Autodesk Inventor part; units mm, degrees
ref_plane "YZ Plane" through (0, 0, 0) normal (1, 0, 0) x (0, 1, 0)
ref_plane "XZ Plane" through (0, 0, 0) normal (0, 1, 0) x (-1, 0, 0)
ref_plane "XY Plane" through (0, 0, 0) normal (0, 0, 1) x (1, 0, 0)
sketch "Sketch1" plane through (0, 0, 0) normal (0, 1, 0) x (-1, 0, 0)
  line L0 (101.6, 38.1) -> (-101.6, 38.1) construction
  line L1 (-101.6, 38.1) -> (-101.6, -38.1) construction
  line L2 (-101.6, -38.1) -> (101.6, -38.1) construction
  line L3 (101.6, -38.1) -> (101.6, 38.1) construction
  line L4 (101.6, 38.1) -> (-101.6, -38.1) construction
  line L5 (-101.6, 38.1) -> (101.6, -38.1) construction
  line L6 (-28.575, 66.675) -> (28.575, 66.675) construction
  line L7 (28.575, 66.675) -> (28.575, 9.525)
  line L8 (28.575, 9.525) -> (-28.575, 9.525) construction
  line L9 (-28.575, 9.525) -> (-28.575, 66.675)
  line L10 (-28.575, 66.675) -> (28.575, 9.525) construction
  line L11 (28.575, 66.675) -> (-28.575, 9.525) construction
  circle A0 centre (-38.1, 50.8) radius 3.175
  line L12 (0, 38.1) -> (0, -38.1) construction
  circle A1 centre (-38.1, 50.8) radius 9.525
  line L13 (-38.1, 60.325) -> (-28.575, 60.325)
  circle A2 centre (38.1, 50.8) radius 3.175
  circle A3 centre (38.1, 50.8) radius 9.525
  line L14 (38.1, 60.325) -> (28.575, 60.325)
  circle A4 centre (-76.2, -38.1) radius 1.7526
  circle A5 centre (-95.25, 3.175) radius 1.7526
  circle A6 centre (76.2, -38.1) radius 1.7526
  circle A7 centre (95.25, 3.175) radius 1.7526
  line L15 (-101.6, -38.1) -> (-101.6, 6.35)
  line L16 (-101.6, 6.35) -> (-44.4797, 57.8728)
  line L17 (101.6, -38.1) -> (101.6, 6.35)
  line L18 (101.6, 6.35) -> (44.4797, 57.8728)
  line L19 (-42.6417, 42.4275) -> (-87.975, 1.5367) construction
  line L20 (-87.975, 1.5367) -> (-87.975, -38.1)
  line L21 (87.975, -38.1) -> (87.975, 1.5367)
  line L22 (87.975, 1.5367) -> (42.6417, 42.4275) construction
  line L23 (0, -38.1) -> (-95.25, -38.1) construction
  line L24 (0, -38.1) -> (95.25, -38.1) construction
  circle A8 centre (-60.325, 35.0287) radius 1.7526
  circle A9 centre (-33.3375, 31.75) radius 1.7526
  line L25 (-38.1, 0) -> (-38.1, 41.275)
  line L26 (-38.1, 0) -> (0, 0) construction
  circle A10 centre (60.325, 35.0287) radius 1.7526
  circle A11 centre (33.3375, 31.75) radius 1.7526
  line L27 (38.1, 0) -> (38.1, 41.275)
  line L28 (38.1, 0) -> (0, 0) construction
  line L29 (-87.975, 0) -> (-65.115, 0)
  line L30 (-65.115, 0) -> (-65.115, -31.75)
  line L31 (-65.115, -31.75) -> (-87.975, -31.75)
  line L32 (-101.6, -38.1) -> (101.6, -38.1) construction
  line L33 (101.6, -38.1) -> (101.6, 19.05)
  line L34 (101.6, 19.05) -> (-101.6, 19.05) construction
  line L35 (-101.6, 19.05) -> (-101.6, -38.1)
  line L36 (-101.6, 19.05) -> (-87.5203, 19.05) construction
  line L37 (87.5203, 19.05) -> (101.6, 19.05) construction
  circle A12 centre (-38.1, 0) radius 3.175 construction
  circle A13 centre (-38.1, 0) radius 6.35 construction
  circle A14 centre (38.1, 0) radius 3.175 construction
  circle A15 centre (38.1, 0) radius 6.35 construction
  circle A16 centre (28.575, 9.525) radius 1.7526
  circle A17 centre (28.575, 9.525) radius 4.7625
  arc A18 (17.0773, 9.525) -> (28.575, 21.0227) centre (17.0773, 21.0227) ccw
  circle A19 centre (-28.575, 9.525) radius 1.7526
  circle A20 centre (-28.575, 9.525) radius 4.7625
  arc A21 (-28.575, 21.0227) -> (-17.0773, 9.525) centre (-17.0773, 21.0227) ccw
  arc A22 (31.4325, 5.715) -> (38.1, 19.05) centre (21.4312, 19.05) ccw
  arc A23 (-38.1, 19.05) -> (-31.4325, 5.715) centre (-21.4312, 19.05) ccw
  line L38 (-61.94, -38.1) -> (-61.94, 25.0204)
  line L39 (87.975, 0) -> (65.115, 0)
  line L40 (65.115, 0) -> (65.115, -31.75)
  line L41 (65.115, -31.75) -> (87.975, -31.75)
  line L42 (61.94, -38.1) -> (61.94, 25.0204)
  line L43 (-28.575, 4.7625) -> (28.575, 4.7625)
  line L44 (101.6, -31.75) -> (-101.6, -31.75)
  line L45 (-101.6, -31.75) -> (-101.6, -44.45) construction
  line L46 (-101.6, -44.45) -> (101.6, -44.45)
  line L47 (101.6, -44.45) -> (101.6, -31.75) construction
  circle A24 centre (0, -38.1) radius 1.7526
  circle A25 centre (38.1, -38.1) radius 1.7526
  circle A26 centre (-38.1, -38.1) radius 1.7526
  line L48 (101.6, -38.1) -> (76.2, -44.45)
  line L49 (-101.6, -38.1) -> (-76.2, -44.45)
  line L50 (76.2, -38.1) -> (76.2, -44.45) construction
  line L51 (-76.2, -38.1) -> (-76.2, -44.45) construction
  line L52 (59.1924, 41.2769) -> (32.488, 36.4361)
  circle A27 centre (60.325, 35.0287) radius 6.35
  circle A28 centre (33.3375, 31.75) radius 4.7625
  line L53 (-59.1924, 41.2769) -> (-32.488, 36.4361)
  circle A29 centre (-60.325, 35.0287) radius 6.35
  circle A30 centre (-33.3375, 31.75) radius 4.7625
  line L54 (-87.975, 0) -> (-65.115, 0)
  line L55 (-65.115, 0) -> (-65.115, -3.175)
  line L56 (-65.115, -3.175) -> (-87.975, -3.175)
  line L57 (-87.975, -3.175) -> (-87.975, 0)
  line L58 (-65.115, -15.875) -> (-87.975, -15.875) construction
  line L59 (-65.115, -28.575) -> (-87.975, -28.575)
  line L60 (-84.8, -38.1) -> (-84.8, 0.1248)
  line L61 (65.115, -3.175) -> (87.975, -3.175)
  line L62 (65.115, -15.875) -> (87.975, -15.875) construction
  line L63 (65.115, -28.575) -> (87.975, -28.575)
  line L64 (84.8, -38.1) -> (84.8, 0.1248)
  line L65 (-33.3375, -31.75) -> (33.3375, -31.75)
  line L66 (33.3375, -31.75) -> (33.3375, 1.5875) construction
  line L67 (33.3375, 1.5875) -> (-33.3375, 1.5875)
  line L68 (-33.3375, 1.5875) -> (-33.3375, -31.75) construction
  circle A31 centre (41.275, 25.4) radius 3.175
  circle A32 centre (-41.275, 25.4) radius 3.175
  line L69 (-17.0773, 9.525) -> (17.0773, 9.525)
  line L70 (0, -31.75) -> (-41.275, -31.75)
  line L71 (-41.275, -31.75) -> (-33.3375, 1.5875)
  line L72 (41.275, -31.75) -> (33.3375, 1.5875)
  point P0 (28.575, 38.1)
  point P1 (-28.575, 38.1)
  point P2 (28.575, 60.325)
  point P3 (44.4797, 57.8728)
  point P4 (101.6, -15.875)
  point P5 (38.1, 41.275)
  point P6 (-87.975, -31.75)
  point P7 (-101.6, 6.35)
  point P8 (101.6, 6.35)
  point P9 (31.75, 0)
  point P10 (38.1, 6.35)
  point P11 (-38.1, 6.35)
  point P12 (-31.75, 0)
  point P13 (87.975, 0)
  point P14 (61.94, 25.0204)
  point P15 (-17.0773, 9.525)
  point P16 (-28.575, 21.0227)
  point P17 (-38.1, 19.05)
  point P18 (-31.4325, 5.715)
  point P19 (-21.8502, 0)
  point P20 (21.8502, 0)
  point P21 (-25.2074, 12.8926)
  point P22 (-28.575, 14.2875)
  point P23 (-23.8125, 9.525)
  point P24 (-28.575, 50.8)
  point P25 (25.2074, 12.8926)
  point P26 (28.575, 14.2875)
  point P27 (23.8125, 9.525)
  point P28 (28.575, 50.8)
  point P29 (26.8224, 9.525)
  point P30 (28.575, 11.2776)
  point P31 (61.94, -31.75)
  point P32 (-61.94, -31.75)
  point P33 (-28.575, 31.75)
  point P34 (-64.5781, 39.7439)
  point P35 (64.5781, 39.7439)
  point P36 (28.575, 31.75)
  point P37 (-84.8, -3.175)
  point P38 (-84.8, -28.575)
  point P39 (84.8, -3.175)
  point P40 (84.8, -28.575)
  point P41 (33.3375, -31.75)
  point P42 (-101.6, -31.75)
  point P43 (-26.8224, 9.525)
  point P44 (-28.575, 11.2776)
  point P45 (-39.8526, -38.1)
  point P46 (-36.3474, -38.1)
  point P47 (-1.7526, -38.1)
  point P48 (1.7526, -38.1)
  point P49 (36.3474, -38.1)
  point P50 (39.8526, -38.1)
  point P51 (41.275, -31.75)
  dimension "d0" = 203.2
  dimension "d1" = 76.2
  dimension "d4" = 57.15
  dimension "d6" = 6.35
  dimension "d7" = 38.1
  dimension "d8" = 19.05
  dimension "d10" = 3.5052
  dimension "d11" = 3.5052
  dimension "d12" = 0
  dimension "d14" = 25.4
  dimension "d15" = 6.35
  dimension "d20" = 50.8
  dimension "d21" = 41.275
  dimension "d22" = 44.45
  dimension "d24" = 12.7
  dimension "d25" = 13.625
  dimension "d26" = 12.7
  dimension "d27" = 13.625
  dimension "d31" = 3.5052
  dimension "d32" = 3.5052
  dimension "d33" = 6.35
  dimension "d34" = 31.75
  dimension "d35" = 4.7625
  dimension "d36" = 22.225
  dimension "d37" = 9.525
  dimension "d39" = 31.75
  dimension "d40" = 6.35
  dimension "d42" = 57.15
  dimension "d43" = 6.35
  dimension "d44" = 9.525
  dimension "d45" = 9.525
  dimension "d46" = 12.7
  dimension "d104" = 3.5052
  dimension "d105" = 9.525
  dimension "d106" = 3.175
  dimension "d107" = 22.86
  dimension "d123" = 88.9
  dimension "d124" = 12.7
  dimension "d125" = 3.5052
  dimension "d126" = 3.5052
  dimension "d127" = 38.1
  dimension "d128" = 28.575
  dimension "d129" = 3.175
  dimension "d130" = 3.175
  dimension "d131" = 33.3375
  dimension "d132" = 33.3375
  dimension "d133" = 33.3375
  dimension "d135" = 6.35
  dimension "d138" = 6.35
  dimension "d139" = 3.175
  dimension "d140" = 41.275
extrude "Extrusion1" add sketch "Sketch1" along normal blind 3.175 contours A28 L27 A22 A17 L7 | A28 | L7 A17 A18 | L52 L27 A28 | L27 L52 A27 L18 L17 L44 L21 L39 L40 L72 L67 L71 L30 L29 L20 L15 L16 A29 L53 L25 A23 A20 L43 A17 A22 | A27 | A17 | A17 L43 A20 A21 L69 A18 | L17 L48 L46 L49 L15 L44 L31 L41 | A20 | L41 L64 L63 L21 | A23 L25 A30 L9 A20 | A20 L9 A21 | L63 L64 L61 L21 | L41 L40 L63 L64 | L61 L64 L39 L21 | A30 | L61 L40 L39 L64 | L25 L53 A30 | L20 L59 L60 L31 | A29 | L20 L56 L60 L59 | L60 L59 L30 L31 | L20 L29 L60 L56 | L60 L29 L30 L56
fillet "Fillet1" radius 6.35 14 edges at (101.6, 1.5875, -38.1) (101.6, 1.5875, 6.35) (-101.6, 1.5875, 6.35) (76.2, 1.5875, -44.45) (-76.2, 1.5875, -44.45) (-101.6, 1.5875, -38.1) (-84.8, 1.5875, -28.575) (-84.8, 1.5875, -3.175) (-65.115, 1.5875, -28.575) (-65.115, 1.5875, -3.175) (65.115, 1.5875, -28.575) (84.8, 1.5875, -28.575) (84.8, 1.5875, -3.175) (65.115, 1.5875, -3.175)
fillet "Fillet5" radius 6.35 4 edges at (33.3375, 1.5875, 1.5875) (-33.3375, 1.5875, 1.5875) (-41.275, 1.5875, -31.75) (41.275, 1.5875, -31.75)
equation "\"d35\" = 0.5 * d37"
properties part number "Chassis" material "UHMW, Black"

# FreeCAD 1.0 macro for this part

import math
import FreeCAD as App
import Part
import Sketcher
from FreeCAD import Vector
Q = App.Units.Quantity


def edges_at(feature, points):
    """Names of the edges that pass closest to the given points."""
    edges = feature.Shape.Edges
    near = lambda p: min(range(len(edges)), key=lambda i: edges[i].distToShape(Part.Vertex(*p))[0])
    return sorted({f"Edge{near(p) + 1}" for p in points})


def add_polygon(sketch, points):
    """Adds a closed chain of lines whose ends are joined by coincident constraints."""
    first, n = sketch.GeometryCount, len(points)
    for a, b in zip(points, points[1:] + points[:1]):
        sketch.addGeometry(Part.LineSegment(App.Vector(*a, 0), App.Vector(*b, 0)), False)
    for i in range(n):
        sketch.addConstraint(Sketcher.Constraint("Coincident", first + i, 2, first + (i + 1) % n, 1))

doc = App.newDocument("Part")
params = doc.addObject("Spreadsheet::Sheet", "Params")
for row, (alias, value) in enumerate([
    ("sketch1_diameter", "0.25 in"),
    ("sketch1_height", "1 in"),
    ("sketch1_radius", "0.25 in"),
    ("sketch1_diameter2", "0.138 in"),
    ("sketch1_radius2", "0.1875 in"),
    ("pad1_length", "0.125 in"),
    ("fillet_radius", "0.25 in"),
    ("fillet2_radius", "0.25 in"),
], start=1):
    params.set(f"A{row}", alias)
    params.set(f"B{row}", "=" + value)
    params.setAlias(f"B{row}", alias)

body = doc.addObject("PartDesign::Body", "Body")

sketch1 = body.newObject("Sketcher::SketchObject", "Sketch")
sketch1.AttachmentSupport = (doc.getObject("XZ_Plane"), [""])
sketch1.MapMode = "FlatFace"
sketch1.addGeometry(Part.LineSegment(Vector(-28.575, 31.75, 0), Vector(-28.575, 21.0227, 0)), False)
sketch1.addGeometry(Part.ArcOfCircle(Part.Circle(Vector(-17.0773, 21.0227, 0), Vector(0, 0, 1), 11.4977), math.radians(180), math.radians(270)), False)
sketch1.addGeometry(Part.LineSegment(Vector(-17.0773, 9.525, 0), Vector(17.0773, 9.525, 0)), False)
sketch1.addGeometry(Part.ArcOfCircle(Part.Circle(Vector(17.0773, 21.0227, 0), Vector(0, 0, 1), 11.4977), math.radians(-90), math.radians(0)), False)
sketch1.addGeometry(Part.LineSegment(Vector(28.575, 21.0227, 0), Vector(28.575, 31.75, 0)), False)
sketch1.addGeometry(Part.ArcOfCircle(Part.Circle(Vector(33.3375, 31.75, 0), Vector(0, 0, 1), 4.7625), math.radians(100.27504), math.radians(180)), False)
sketch1.addGeometry(Part.LineSegment(Vector(32.488, 36.4361, 0), Vector(59.1924, 41.2769, 0)), False)
sketch1.addGeometry(Part.ArcOfCircle(Part.Circle(Vector(60.325, 35.0287, 0), Vector(0, 0, 1), 6.35), math.radians(47.94938), math.radians(100.274341)), False)
sketch1.addGeometry(Part.LineSegment(Vector(64.578139, 39.743906, 0), Vector(101.6, 6.35, 0)), False)
sketch1.addGeometry(Part.LineSegment(Vector(101.6, 6.35, 0), Vector(101.6, -38.1, 0)), False)
sketch1.addGeometry(Part.LineSegment(Vector(101.6, -38.1, 0), Vector(76.2, -44.45, 0)), False)
sketch1.addGeometry(Part.LineSegment(Vector(76.2, -44.45, 0), Vector(-76.2, -44.45, 0)), False)
sketch1.addGeometry(Part.LineSegment(Vector(-76.2, -44.45, 0), Vector(-101.6, -38.1, 0)), False)
sketch1.addGeometry(Part.LineSegment(Vector(-101.6, -38.1, 0), Vector(-101.6, 6.35, 0)), False)
sketch1.addGeometry(Part.LineSegment(Vector(-101.6, 6.35, 0), Vector(-64.578139, 39.743906, 0)), False)
sketch1.addGeometry(Part.ArcOfCircle(Part.Circle(Vector(-60.325, 35.0287, 0), Vector(0, 0, 1), 6.35), math.radians(79.725659), math.radians(132.05062)), False)
sketch1.addGeometry(Part.LineSegment(Vector(-59.1924, 41.2769, 0), Vector(-32.488, 36.4361, 0)), False)
sketch1.addGeometry(Part.ArcOfCircle(Part.Circle(Vector(-33.3375, 31.75, 0), Vector(0, 0, 1), 4.7625), math.radians(0), math.radians(79.72496)), False)
sketch1.addGeometry(Part.Circle(Vector(-33.3375, 31.75, 0), Vector(0, 0, 1), 1.7526), False)
add_polygon(sketch1, [(-65.115, -28.575), (-65.115, -3.175), (-84.8, -3.175), (-84.8, -28.575)])
add_polygon(sketch1, [(-33.3375, 1.5875), (-41.275, -31.75), (41.275, -31.75), (33.3375, 1.5875)])
add_polygon(sketch1, [(65.115, -3.175), (65.115, -28.575), (84.8, -28.575), (84.8, -3.175)])
sketch1.addGeometry(Part.Circle(Vector(41.275, 25.4, 0), Vector(0, 0, 1), 3.175), False)
sketch1.addGeometry(Part.Circle(Vector(-41.275, 25.4, 0), Vector(0, 0, 1), 3.175), False)
sketch1.addGeometry(Part.Circle(Vector(95.25, 3.175, 0), Vector(0, 0, 1), 1.7526), False)
sketch1.addGeometry(Part.Circle(Vector(-95.25, 3.175, 0), Vector(0, 0, 1), 1.7526), False)
sketch1.addGeometry(Part.Circle(Vector(-28.575, 9.525, 0), Vector(0, 0, 1), 1.7526), False)
sketch1.addGeometry(Part.Circle(Vector(-60.325, 35.0287, 0), Vector(0, 0, 1), 1.7526), False)
sketch1.addGeometry(Part.Circle(Vector(-76.2, -38.1, 0), Vector(0, 0, 1), 1.7526), False)
sketch1.addGeometry(Part.Circle(Vector(76.2, -38.1, 0), Vector(0, 0, 1), 1.7526), False)
sketch1.addGeometry(Part.Circle(Vector(38.1, -38.1, 0), Vector(0, 0, 1), 1.7526), False)
sketch1.addGeometry(Part.Circle(Vector(0, -38.1, 0), Vector(0, 0, 1), 1.7526), False)
sketch1.addGeometry(Part.Circle(Vector(-38.1, -38.1, 0), Vector(0, 0, 1), 1.7526), False)
sketch1.addGeometry(Part.Circle(Vector(60.325, 35.0287, 0), Vector(0, 0, 1), 1.7526), False)
sketch1.addGeometry(Part.Circle(Vector(28.575, 9.525, 0), Vector(0, 0, 1), 1.7526), False)
sketch1.addGeometry(Part.Circle(Vector(33.3375, 31.75, 0), Vector(0, 0, 1), 1.7526), False)
sketch1.addConstraint(Sketcher.Constraint("Tangent", 0, 2, 1, 1))
sketch1.addConstraint(Sketcher.Constraint("Tangent", 1, 2, 2, 1))
sketch1.addConstraint(Sketcher.Constraint("Tangent", 2, 2, 3, 1))
sketch1.addConstraint(Sketcher.Constraint("Tangent", 3, 2, 4, 1))
sketch1.addConstraint(Sketcher.Constraint("Tangent", 4, 2, 5, 2))
sketch1.addConstraint(Sketcher.Constraint("Tangent", 5, 1, 6, 1))
sketch1.addConstraint(Sketcher.Constraint("Tangent", 6, 2, 7, 2))
sketch1.addConstraint(Sketcher.Constraint("Tangent", 7, 1, 8, 1))
sketch1.addConstraint(Sketcher.Constraint("Coincident", 8, 2, 9, 1))
sketch1.addConstraint(Sketcher.Constraint("Coincident", 9, 2, 10, 1))
sketch1.addConstraint(Sketcher.Constraint("Coincident", 10, 2, 11, 1))
sketch1.addConstraint(Sketcher.Constraint("Coincident", 11, 2, 12, 1))
sketch1.addConstraint(Sketcher.Constraint("Coincident", 12, 2, 13, 1))
sketch1.addConstraint(Sketcher.Constraint("Coincident", 13, 2, 14, 1))
sketch1.addConstraint(Sketcher.Constraint("Tangent", 14, 2, 15, 2))
sketch1.addConstraint(Sketcher.Constraint("Tangent", 15, 1, 16, 1))
sketch1.addConstraint(Sketcher.Constraint("Tangent", 16, 2, 17, 2))
sketch1.addConstraint(Sketcher.Constraint("Tangent", 17, 1, 0, 1))
sketch1.addConstraint(Sketcher.Constraint("Vertical", 0))
sketch1.addConstraint(Sketcher.Constraint("Horizontal", 2))
sketch1.addConstraint(Sketcher.Constraint("Vertical", 4))
sketch1.addConstraint(Sketcher.Constraint("Vertical", 9))
sketch1.addConstraint(Sketcher.Constraint("Horizontal", 11))
sketch1.addConstraint(Sketcher.Constraint("Vertical", 13))
sketch1.addConstraint(Sketcher.Constraint("Vertical", 19))
sketch1.addConstraint(Sketcher.Constraint("Horizontal", 20))
sketch1.addConstraint(Sketcher.Constraint("Vertical", 21))
sketch1.addConstraint(Sketcher.Constraint("Horizontal", 22))
sketch1.addConstraint(Sketcher.Constraint("Horizontal", 24))
sketch1.addConstraint(Sketcher.Constraint("Horizontal", 26))
sketch1.addConstraint(Sketcher.Constraint("Vertical", 27))
sketch1.addConstraint(Sketcher.Constraint("Horizontal", 28))
sketch1.addConstraint(Sketcher.Constraint("Vertical", 29))
sketch1.addConstraint(Sketcher.Constraint("Horizontal", 30))
sketch1.addConstraint(Sketcher.Constraint("Coincident", 18, 3, 17, 3))
sketch1.addConstraint(Sketcher.Constraint("Coincident", 36, 3, 15, 3))
sketch1.addConstraint(Sketcher.Constraint("Coincident", 42, 3, 7, 3))
sketch1.addConstraint(Sketcher.Constraint("Coincident", 44, 3, 5, 3))
sketch1.addConstraint(Sketcher.Constraint("Equal", 1, 3))
sketch1.addConstraint(Sketcher.Constraint("Equal", 7, 15))
sketch1.addConstraint(Sketcher.Constraint("Equal", 5, 17))
sketch1.addConstraint(Sketcher.Constraint("Equal", 31, 32))
sketch1.addConstraint(Sketcher.Constraint("Equal", 18, 33))
sketch1.addConstraint(Sketcher.Constraint("Equal", 33, 34))
sketch1.addConstraint(Sketcher.Constraint("Equal", 34, 35))
sketch1.addConstraint(Sketcher.Constraint("Equal", 35, 36))
sketch1.addConstraint(Sketcher.Constraint("Equal", 36, 37))
sketch1.addConstraint(Sketcher.Constraint("Equal", 37, 38))
sketch1.addConstraint(Sketcher.Constraint("Equal", 38, 39))
sketch1.addConstraint(Sketcher.Constraint("Equal", 39, 40))
sketch1.addConstraint(Sketcher.Constraint("Equal", 40, 41))
sketch1.addConstraint(Sketcher.Constraint("Equal", 41, 42))
sketch1.addConstraint(Sketcher.Constraint("Equal", 42, 43))
sketch1.addConstraint(Sketcher.Constraint("Equal", 43, 44))
sketch1.addConstraint(Sketcher.Constraint("Symmetric", 7, 3, 15, 3, -2))
sketch1.addConstraint(Sketcher.Constraint("Symmetric", 5, 3, 17, 3, -2))
sketch1.addConstraint(Sketcher.Constraint("Symmetric", 31, 3, 32, 3, -2))
sketch1.addConstraint(Sketcher.Constraint("Symmetric", 33, 3, 34, 3, -2))
sketch1.addConstraint(Sketcher.Constraint("Symmetric", 37, 3, 38, 3, -2))
sketch1.addConstraint(Sketcher.Constraint("Symmetric", 39, 3, 41, 3, -2))
sketch1.addConstraint(Sketcher.Constraint("Symmetric", 35, 3, 43, 3, -2))
sketch1.addConstraint(Sketcher.Constraint("Symmetric", 9, 2, 12, 2, -2))
sketch1.addConstraint(Sketcher.Constraint("Symmetric", 22, 2, 27, 2, -2))
sketch1.addConstraint(Sketcher.Constraint("Symmetric", 20, 2, 29, 2, -2))
sketch1.addConstraint(Sketcher.Constraint("PointOnObject", 40, 3, -2))
sketch1.addConstraint(Sketcher.Constraint("Horizontal", 38, 3, 39, 3))
sketch1.addConstraint(Sketcher.Constraint("Horizontal", 39, 3, 40, 3))
sketch1.addConstraint(Sketcher.Constraint("Horizontal", 43, 3, 1, 2))
sketch1.addConstraint(Sketcher.Constraint("Horizontal", 41, 3, 9, 2))
sketch1.addConstraint(Sketcher.Constraint("Horizontal", 8, 2, 13, 2))
sketch1.addConstraint(Sketcher.Constraint("Vertical", 35, 3, 0, 2))
sketch1.addConstraint(Sketcher.Constraint("Vertical", 38, 3, 10, 2))
sketch1.addConstraint(Sketcher.Constraint("Vertical", 37, 3, 11, 2))
sketch1.addConstraint(Sketcher.Constraint("Vertical", 32, 3, 23, 2))
sketch1.addConstraint(Sketcher.Constraint("Vertical", 31, 3, 24, 2))
sketch1.addConstraint(Sketcher.Constraint("Vertical", 44, 3, 25, 2))
sketch1.addConstraint(Sketcher.Constraint("Vertical", 18, 3, 26, 2))
sketch1.addConstraint(Sketcher.Constraint("Diameter", 31, Q("0.25 in")))
sketch1.addConstraint(Sketcher.Constraint("DistanceY", 19, 1, 19, 2, Q("1 in")))
sketch1.addConstraint(Sketcher.Constraint("Radius", 7, Q("0.25 in")))
sketch1.addConstraint(Sketcher.Constraint("Diameter", 18, Q("0.138 in")))
sketch1.addConstraint(Sketcher.Constraint("DistanceY", -1, 1, 31, 3, Q("1 in")))
sketch1.addConstraint(Sketcher.Constraint("DistanceX", 37, 3, -1, 1, Q("3 in")))
sketch1.addConstraint(Sketcher.Constraint("Radius", 5, Q("0.1875 in")))
sketch1.addConstraint(Sketcher.Constraint("DistanceX", 38, 3, 8, 2, Q("1 in")))
sketch1.addConstraint(Sketcher.Constraint("DistanceY", 10, 2, 8, 2, Q("2 in")))
sketch1.addConstraint(Sketcher.Constraint("DistanceY", 9, 2, 9, 1, Q("1.75 in")))
sketch1.addConstraint(Sketcher.Constraint("DistanceY", 37, 3, -1, 1, Q("1.5 in")))
sketch1.addConstraint(Sketcher.Constraint("DistanceX", -1, 1, 39, 3, Q("1.5 in")))
sketch1.addConstraint(Sketcher.Constraint("DistanceX", 32, 3, 35, 3, Q("0.5 in")))
sketch1.addConstraint(Sketcher.Constraint("DistanceY", 11, 2, 23, 2, Q("0.5 in")))
sketch1.addConstraint(Sketcher.Constraint("DistanceY", -1, 1, 5, 3, Q("1.25 in")))
sketch1.addConstraint(Sketcher.Constraint("DistanceX", 31, 3, 7, 3, Q("0.75 in")))
sketch1.addConstraint(Sketcher.Constraint("DistanceX", 34, 3, 37, 3, Q("0.75 in")))
sketch1.addConstraint(Sketcher.Constraint("DistanceY", 19, 2, 34, 3, Q("0.25 in")))
sketch1.addConstraint(Sketcher.Constraint("DistanceX", -1, 1, 5, 3, Q("1.3125 in")))
sketch1.addConstraint(Sketcher.Constraint("DistanceY", -1, 1, 33, 3, Q("0.125 in")))
sketch1.addConstraint(Sketcher.Constraint("DistanceY", -1, 1, 35, 3, Q("0.375 in")))
sketch1.addConstraint(Sketcher.Constraint("DistanceY", 30, 2, 25, 2, Q("0.1875 in")))
sketch1.addConstraint(Sketcher.Constraint("DistanceX", 20, 2, 20, 1, Q("0.775 in")))
sketch1.addConstraint(Sketcher.Constraint("Angle", 8, Q("-42.0506 deg")))
sketch1.addConstraint(Sketcher.Constraint("Radius", 1, 11.4977))
sketch1.addConstraint(Sketcher.Constraint("DistanceX", 19, 2, -1, 1, 65.115))
sketch1.setExpression("Constraints[89]", "Params.sketch1_diameter")
sketch1.setExpression("Constraints[90]", "Params.sketch1_height")
sketch1.setExpression("Constraints[91]", "Params.sketch1_radius")
sketch1.setExpression("Constraints[92]", "Params.sketch1_diameter2")
sketch1.setExpression("Constraints[95]", "Params.sketch1_radius2")
pad1 = body.newObject("PartDesign::Pad", "Pad")
pad1.Profile = sketch1
pad1.setExpression("Length", "Params.pad1_length")
pad1.Reversed = True
doc.recompute()

fillet = body.newObject("PartDesign::Fillet", "Fillet")
fillet.Base = (pad1, edges_at(pad1, [
    (101.6, 1.587, -38.1),
    (101.6, 1.587, 6.35),
    (-101.6, 1.587, 6.35),
    (76.2, 1.587, -44.45),
    (-76.2, 1.587, -44.45),
    (-101.6, 1.587, -38.1),
    (-84.8, 1.587, -28.575),
    (-84.8, 1.587, -3.175),
    (-65.115, 1.587, -28.575),
    (-65.115, 1.587, -3.175),
    (65.115, 1.587, -28.575),
    (84.8, 1.587, -28.575),
    (84.8, 1.587, -3.175),
    (65.115, 1.587, -3.175),
]))
fillet.setExpression("Radius", "Params.fillet_radius")
doc.recompute()

fillet2 = body.newObject("PartDesign::Fillet", "Fillet001")
fillet2.Base = (fillet, edges_at(fillet, [
    (33.337, 1.587, 1.587),
    (-33.337, 1.587, 1.587),
    (-41.275, 1.587, -31.75),
    (41.275, 1.587, -31.75),
]))
fillet2.setExpression("Radius", "Params.fillet2_radius")

doc.recompute()
